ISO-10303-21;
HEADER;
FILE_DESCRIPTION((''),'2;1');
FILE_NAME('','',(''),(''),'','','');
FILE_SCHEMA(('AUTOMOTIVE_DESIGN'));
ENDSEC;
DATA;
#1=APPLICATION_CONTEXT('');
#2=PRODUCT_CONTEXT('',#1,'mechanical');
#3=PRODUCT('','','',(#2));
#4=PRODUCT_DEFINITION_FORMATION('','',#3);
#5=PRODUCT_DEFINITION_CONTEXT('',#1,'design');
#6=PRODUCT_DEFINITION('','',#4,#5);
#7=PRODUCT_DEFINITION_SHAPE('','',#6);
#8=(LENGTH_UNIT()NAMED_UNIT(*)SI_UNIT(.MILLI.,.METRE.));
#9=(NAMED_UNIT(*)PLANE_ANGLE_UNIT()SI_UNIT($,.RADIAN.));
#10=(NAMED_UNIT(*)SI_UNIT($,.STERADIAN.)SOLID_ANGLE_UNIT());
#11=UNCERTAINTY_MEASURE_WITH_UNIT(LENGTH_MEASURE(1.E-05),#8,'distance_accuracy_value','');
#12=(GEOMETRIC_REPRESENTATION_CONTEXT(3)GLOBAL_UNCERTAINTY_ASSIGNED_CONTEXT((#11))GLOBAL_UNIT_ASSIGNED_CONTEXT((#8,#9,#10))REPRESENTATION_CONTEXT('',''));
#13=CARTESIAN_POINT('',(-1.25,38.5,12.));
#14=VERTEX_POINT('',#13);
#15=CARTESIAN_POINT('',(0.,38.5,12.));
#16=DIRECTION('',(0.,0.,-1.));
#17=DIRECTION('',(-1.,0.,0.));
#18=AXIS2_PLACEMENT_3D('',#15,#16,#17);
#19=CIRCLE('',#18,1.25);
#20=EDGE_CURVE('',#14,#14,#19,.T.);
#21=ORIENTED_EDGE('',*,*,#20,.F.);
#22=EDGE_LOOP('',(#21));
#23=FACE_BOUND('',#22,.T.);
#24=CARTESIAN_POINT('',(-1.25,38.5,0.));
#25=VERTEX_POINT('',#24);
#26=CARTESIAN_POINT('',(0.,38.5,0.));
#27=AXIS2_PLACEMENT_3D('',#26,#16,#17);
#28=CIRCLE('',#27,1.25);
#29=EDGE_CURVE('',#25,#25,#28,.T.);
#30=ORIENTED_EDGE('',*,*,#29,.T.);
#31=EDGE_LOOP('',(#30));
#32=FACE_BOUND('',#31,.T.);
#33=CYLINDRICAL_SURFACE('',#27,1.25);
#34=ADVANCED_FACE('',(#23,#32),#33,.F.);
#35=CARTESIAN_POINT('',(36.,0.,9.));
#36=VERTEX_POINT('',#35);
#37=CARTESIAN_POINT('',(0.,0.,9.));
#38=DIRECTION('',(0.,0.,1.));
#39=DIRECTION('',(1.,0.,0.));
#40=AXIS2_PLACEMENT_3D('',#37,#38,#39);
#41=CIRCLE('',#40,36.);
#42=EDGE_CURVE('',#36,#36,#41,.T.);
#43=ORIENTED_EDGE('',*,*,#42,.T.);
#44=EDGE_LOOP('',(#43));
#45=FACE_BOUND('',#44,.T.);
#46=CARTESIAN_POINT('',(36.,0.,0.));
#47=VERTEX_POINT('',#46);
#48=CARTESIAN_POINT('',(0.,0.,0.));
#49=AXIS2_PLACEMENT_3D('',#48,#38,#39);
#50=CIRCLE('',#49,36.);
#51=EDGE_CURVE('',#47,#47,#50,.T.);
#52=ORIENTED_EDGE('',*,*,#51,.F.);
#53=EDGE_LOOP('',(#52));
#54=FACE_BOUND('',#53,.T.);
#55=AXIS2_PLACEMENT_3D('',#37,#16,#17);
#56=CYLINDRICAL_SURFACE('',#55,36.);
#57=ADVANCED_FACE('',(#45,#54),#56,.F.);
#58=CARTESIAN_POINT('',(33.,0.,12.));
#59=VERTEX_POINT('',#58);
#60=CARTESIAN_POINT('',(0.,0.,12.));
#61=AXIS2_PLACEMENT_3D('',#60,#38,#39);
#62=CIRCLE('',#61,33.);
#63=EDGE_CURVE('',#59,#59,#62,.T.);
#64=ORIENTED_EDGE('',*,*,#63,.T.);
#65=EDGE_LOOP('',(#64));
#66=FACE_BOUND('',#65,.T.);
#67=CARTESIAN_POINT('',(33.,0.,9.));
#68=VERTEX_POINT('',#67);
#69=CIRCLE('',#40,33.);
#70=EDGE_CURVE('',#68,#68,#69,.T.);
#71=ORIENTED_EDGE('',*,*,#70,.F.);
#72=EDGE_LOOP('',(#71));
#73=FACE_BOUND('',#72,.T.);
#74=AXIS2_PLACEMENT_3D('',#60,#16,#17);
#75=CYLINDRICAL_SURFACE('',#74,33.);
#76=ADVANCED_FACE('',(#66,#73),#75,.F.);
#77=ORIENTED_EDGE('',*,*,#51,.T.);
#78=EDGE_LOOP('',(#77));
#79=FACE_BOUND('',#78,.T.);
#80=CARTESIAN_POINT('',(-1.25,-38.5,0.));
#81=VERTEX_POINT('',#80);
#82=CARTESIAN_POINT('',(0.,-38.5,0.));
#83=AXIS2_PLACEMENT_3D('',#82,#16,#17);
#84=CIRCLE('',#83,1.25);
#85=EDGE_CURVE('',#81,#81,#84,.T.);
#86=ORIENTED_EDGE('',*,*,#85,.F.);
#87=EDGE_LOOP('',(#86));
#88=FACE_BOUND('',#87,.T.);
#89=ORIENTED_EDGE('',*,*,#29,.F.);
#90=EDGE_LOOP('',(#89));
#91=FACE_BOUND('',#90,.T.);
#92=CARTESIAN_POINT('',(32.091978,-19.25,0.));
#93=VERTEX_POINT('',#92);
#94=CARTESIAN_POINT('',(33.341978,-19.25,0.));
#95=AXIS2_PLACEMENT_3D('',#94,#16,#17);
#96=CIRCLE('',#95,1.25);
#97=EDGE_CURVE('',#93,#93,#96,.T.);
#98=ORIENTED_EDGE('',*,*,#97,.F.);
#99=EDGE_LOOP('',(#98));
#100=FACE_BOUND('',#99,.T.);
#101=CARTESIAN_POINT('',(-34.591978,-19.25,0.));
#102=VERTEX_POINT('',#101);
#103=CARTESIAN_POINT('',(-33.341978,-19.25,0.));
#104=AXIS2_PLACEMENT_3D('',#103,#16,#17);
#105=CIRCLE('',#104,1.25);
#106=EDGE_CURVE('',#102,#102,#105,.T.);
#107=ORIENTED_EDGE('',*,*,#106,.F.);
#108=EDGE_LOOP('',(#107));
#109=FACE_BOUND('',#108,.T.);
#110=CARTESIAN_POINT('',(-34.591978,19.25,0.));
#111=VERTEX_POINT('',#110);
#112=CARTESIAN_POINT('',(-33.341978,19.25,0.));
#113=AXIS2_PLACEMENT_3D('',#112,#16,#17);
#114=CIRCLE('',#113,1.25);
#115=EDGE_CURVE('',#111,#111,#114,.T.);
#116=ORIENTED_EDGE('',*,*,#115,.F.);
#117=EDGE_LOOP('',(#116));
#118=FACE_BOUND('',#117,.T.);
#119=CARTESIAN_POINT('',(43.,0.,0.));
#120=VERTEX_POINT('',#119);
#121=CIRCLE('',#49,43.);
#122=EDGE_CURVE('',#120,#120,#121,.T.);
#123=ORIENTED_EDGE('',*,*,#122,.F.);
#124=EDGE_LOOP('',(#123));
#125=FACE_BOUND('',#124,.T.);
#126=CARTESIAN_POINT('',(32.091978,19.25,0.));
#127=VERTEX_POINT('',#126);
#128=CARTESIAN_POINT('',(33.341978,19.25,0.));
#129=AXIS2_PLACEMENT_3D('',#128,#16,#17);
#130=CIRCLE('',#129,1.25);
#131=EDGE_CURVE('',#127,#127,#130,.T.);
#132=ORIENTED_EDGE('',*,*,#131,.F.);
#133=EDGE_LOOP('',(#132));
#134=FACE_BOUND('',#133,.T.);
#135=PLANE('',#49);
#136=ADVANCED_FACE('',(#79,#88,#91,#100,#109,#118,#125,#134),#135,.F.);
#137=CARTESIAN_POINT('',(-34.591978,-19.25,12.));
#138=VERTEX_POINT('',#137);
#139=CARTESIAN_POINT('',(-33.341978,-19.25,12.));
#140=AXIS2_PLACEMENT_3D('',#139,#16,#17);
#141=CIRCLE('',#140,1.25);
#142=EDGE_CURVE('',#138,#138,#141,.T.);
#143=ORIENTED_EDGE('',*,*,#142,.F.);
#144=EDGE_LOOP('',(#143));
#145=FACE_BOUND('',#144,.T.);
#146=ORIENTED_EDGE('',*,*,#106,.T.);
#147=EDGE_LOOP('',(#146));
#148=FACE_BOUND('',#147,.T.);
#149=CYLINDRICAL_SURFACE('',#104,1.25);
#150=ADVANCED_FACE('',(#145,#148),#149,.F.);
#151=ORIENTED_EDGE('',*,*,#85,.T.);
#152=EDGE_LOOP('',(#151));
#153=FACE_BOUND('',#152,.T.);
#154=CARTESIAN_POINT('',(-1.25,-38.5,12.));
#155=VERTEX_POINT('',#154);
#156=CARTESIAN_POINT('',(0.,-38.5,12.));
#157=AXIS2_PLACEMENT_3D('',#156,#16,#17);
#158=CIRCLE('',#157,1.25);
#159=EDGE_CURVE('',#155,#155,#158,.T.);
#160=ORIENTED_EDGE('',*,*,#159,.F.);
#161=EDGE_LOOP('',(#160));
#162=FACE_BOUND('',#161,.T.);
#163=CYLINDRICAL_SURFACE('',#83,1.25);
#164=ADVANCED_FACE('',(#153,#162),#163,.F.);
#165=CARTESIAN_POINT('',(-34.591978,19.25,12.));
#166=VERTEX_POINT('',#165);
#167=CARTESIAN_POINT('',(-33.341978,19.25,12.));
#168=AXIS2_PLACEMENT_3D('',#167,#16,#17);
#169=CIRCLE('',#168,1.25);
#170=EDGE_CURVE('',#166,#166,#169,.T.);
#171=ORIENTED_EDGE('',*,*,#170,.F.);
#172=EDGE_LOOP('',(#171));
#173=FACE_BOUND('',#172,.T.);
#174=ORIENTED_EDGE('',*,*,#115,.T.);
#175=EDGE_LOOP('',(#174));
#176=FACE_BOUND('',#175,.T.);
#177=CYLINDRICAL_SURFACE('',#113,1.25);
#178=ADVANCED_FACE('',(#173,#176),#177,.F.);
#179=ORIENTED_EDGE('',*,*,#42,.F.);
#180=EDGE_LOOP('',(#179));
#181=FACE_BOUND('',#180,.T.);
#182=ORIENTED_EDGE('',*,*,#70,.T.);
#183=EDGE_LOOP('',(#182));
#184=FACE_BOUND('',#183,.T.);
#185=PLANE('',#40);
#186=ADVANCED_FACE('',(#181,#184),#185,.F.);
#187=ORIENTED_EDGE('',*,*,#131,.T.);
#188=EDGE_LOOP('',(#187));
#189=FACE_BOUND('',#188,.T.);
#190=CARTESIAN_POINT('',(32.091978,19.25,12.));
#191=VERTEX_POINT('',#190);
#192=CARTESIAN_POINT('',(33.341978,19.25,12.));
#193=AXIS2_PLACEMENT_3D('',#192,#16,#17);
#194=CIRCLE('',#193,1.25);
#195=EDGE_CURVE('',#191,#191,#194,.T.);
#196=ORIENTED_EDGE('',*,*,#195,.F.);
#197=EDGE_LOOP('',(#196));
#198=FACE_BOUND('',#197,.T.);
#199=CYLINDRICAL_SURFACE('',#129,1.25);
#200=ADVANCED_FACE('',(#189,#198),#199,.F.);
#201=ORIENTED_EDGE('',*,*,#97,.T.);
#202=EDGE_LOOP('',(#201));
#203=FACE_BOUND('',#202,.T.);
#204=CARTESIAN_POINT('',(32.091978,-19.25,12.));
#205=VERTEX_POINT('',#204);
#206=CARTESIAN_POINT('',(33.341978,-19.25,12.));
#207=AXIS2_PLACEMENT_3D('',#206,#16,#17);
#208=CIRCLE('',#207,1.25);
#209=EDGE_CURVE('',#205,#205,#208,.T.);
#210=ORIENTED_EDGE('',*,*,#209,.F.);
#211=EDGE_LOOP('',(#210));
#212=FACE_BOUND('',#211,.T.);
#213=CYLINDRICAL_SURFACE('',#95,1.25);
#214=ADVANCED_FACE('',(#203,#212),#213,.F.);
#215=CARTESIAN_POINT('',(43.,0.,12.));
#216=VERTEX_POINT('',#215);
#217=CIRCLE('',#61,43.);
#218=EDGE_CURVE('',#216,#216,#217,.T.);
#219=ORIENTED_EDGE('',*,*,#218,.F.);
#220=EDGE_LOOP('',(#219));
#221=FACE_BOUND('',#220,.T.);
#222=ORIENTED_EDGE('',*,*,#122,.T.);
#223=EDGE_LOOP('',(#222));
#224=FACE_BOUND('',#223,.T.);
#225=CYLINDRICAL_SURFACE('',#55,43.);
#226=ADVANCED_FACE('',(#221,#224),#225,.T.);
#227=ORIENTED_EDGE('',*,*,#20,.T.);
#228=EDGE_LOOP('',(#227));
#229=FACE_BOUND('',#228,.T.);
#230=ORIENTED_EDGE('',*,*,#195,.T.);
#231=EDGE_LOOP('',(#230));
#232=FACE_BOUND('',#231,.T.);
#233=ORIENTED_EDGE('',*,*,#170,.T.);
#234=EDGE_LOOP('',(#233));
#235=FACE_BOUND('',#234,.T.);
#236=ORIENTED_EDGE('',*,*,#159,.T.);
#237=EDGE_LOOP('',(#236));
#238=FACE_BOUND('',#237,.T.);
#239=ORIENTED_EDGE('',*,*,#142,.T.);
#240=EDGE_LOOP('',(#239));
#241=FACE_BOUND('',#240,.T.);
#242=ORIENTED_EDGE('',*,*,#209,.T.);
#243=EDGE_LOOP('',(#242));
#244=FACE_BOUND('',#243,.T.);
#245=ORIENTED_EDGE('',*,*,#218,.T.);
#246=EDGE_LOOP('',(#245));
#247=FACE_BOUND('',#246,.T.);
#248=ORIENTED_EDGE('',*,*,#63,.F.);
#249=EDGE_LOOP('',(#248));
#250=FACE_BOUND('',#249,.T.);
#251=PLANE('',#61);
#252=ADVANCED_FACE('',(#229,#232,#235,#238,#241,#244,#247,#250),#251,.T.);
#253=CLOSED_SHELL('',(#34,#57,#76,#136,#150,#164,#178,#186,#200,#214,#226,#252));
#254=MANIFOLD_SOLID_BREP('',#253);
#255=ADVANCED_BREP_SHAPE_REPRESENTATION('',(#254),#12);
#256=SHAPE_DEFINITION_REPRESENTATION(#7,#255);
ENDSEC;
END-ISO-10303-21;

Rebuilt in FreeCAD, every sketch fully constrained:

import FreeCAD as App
import Part
import Sketcher
Q = App.Units.Quantity

doc = App.newDocument("Part")
body = doc.addObject("PartDesign::Body", "Body")

# Sketch on XY plane
sketch1 = body.newObject("Sketcher::SketchObject", "Sketch")
sketch1.AttachmentSupport = (doc.getObject("XY_Plane"), [""])
sketch1.MapMode = "FlatFace"
sketch1.addGeometry([
    Part.Circle(App.Vector(0, 0, 0), App.Vector(0, 0, 1), 43),
    Part.Circle(App.Vector(0, 0, 0), App.Vector(0, 0, 1), 36),
], False)
sketch1.addConstraint([
    Sketcher.Constraint("Coincident", 0, 3, -1, 1),
    Sketcher.Constraint("Coincident", 1, 3, -1, 1),
    Sketcher.Constraint("Diameter", 0, Q("86 mm")),
    Sketcher.Constraint("Diameter", 1, Q("72 mm")),
])
pad1 = body.newObject("PartDesign::Pad", "Pad")
pad1.Profile = sketch1
pad1.Length = 9

# Sketch on XY plane
sketch2 = body.newObject("Sketcher::SketchObject", "Sketch001")
sketch2.AttachmentSupport = (doc.getObject("XY_Plane"), [""])
sketch2.MapMode = "FlatFace"
sketch2.AttachmentOffset = App.Placement(App.Vector(0, 0, 9), App.Rotation())
sketch2.addGeometry([
    Part.Circle(App.Vector(0, 0, 0), App.Vector(0, 0, 1), 43),
    Part.Circle(App.Vector(0, 0, 0), App.Vector(0, 0, 1), 33),
], False)
sketch2.addConstraint([
    Sketcher.Constraint("Coincident", 0, 3, -1, 1),
    Sketcher.Constraint("Coincident", 1, 3, -1, 1),
    Sketcher.Constraint("Diameter", 0, Q("86 mm")),
    Sketcher.Constraint("Diameter", 1, Q("66 mm")),
])
pad2 = body.newObject("PartDesign::Pad", "Pad001")
pad2.Profile = sketch2
pad2.Length = 3

# Sketch on XY plane
sketch3 = body.newObject("Sketcher::SketchObject", "Sketch002")
sketch3.AttachmentSupport = (doc.getObject("XY_Plane"), [""])
sketch3.MapMode = "FlatFace"
sketch3.addGeometry([
    Part.Circle(App.Vector(-33.341978, 19.25, 0), App.Vector(0, 0, 1), 1.25),  # 0
    Part.Circle(App.Vector(0, 38.5, 0), App.Vector(0, 0, 1), 1.25),  # 1
    Part.Circle(App.Vector(33.341978, 19.25, 0), App.Vector(0, 0, 1), 1.25),  # 2
    Part.Circle(App.Vector(33.341978, -19.25, 0), App.Vector(0, 0, 1), 1.25),  # 3
    Part.Circle(App.Vector(0, -38.5, 0), App.Vector(0, 0, 1), 1.25),  # 4
    Part.Circle(App.Vector(-33.341978, -19.25, 0), App.Vector(0, 0, 1), 1.25),  # 5
], False)
sketch3.addConstraint([
    Sketcher.Constraint("Equal", 0, 1),
    Sketcher.Constraint("Equal", 1, 2),
    Sketcher.Constraint("Equal", 2, 3),
    Sketcher.Constraint("Equal", 3, 4),
    Sketcher.Constraint("Equal", 4, 5),
    Sketcher.Constraint("Symmetric", 0, 3, 3, 3, -1, 1),
    Sketcher.Constraint("Symmetric", 1, 3, 4, 3, -1, 1),
    Sketcher.Constraint("Symmetric", 2, 3, 5, 3, -1, 1),
    Sketcher.Constraint("Symmetric", 0, 3, 2, 3, -2),
    Sketcher.Constraint("PointOnObject", 1, 3, -2),
    Sketcher.Constraint("Diameter", 0, Q("2.5 mm")),
    Sketcher.Constraint("DistanceY", 4, 3, 1, 3, Q("77 mm")),
    Sketcher.Constraint("DistanceY", 3, 3, 2, 3, Q("38.5 mm")),
    Sketcher.Constraint("DistanceX", 0, 3, -1, 1, Q("33.341978 mm")),
])
doc.recompute()
hole = body.newObject("PartDesign::Hole", "Hole")
hole.Profile = sketch3
hole.ThreadType = "None"
hole.Diameter = 2.5
hole.DepthType = "ThroughAll"
hole.Reversed = True

doc.recompute()
